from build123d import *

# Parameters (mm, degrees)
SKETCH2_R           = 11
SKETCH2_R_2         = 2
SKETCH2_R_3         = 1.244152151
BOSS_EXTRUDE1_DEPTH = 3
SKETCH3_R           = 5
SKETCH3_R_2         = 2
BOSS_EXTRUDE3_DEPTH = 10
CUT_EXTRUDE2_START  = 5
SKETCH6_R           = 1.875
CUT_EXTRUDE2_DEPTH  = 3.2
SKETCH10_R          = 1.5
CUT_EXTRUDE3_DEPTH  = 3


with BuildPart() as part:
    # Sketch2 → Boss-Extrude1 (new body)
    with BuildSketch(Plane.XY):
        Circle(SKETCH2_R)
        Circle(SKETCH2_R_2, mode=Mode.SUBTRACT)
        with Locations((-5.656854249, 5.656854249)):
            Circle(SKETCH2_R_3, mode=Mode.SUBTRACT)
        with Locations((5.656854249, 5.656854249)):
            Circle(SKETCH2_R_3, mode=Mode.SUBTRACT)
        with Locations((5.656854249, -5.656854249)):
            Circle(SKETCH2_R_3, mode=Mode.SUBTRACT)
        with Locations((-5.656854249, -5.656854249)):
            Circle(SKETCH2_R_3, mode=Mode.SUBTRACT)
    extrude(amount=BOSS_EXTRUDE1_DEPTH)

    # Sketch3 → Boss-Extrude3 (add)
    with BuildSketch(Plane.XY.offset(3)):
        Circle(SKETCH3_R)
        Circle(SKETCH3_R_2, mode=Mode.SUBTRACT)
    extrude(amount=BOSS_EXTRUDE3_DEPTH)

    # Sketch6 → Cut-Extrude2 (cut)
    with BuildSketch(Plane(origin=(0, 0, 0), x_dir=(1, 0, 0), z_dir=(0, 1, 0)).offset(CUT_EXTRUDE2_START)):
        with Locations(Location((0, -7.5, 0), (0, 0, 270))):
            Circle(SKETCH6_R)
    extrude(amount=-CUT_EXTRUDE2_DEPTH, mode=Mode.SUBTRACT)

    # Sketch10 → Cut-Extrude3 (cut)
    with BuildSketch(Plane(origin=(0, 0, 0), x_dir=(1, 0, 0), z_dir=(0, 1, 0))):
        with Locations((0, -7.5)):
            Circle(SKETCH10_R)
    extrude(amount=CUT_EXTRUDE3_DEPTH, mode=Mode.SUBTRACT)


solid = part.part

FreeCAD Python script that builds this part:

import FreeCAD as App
import Part
import Sketcher

V = App.Vector
Q = App.Units.Quantity

doc = App.newDocument("Part")
body = doc.addObject("PartDesign::Body", "Body")

sketch1 = body.newObject("Sketcher::SketchObject", "Sketch")
sketch1.AttachmentSupport = (doc.getObject("XY_Plane"), [""])
sketch1.MapMode = "FlatFace"
sketch1.addGeometry([
    Part.Circle(V(0, 0, 0), V(0, 0, 1), 11),
    Part.Circle(V(-5.656854, -5.656854, 0), V(0, 0, 1), 1.244152),
    Part.Circle(V(5.656854, -5.656854, 0), V(0, 0, 1), 1.244152),
    Part.Circle(V(-5.656854, 5.656854, 0), V(0, 0, 1), 1.244152),
    Part.Circle(V(0, 0, 0), V(0, 0, 1), 2),
    Part.Circle(V(5.656854, 5.656854, 0), V(0, 0, 1), 1.244152),
], False)
sketch1.addConstraint([
    Sketcher.Constraint("Coincident", 0, 3, -1, 1),
    Sketcher.Constraint("Coincident", 4, 3, -1, 1),
    Sketcher.Constraint("Equal", 1, 2),
    Sketcher.Constraint("Equal", 2, 3),
    Sketcher.Constraint("Equal", 3, 5),
    Sketcher.Constraint("Symmetric", 2, 3, 3, 3, -1, 1),
    Sketcher.Constraint("Symmetric", 1, 3, 5, 3, -1, 1),
    Sketcher.Constraint("Symmetric", 1, 3, 2, 3, -2),
    Sketcher.Constraint("Diameter", 0, Q("22 mm")),
    Sketcher.Constraint("Diameter", 4, Q("4 mm")),
    Sketcher.Constraint("Diameter", 1, Q("2.488304 mm")),
    Sketcher.Constraint("DistanceX", 1, 3, 2, 3, Q("11.313708 mm")),
    Sketcher.Constraint("DistanceY", 1, 3, 3, 3, Q("11.313708 mm")),
])
pad1 = body.newObject("PartDesign::Pad", "Pad")
pad1.Profile = sketch1
pad1.Length = 3

sketch2 = body.newObject("Sketcher::SketchObject", "Sketch001")
sketch2.AttachmentSupport = (doc.getObject("XY_Plane"), [""])
sketch2.MapMode = "FlatFace"
sketch2.AttachmentOffset = App.Placement(V(0, 0, 3), App.Rotation())
sketch2.addGeometry([
    Part.Circle(V(0, 0, 0), V(0, 0, 1), 5),
    Part.Circle(V(0, 0, 0), V(0, 0, 1), 2),
], False)
sketch2.addConstraint([
    Sketcher.Constraint("Coincident", 0, 3, -1, 1),
    Sketcher.Constraint("Coincident", 1, 3, -1, 1),
    Sketcher.Constraint("Diameter", 0, Q("10 mm")),
    Sketcher.Constraint("Diameter", 1, Q("4 mm")),
])
pad2 = body.newObject("PartDesign::Pad", "Pad001")
pad2.Profile = sketch2
pad2.Length = 10

sketch3 = body.newObject("Sketcher::SketchObject", "Sketch002")
sketch3.AttachmentSupport = (doc.getObject("XZ_Plane"), [""])
sketch3.MapMode = "FlatFace"
sketch3.AttachmentOffset = App.Placement(V(0, 0, -5), App.Rotation())
sketch3.addGeometry(Part.Circle(V(0, 7.5, 0), V(0, 0, 1), 1.875), False)
sketch3.addConstraint([
    Sketcher.Constraint("PointOnObject", 0, 3, -2),
    Sketcher.Constraint("Diameter", 0, Q("3.75 mm")),
    Sketcher.Constraint("DistanceY", -1, 1, 0, 3, Q("7.5 mm")),
])
pocket1 = body.newObject("PartDesign::Pocket", "Pocket")
pocket1.Profile = sketch3
pocket1.Length = 3.2
pocket1.Reversed = True

sketch4 = body.newObject("Sketcher::SketchObject", "Sketch003")
sketch4.AttachmentSupport = (doc.getObject("XZ_Plane"), [""])
sketch4.MapMode = "FlatFace"
sketch4.addGeometry(Part.Circle(V(0, 7.5, 0), V(0, 0, 1), 1.5), False)
sketch4.addConstraint([
    Sketcher.Constraint("PointOnObject", 0, 3, -2),
    Sketcher.Constraint("Diameter", 0, Q("3 mm")),
    Sketcher.Constraint("DistanceY", -1, 1, 0, 3, Q("7.5 mm")),
])
pocket2 = body.newObject("PartDesign::Pocket", "Pocket001")
pocket2.Profile = sketch4
pocket2.Length = 3

doc.recompute()
